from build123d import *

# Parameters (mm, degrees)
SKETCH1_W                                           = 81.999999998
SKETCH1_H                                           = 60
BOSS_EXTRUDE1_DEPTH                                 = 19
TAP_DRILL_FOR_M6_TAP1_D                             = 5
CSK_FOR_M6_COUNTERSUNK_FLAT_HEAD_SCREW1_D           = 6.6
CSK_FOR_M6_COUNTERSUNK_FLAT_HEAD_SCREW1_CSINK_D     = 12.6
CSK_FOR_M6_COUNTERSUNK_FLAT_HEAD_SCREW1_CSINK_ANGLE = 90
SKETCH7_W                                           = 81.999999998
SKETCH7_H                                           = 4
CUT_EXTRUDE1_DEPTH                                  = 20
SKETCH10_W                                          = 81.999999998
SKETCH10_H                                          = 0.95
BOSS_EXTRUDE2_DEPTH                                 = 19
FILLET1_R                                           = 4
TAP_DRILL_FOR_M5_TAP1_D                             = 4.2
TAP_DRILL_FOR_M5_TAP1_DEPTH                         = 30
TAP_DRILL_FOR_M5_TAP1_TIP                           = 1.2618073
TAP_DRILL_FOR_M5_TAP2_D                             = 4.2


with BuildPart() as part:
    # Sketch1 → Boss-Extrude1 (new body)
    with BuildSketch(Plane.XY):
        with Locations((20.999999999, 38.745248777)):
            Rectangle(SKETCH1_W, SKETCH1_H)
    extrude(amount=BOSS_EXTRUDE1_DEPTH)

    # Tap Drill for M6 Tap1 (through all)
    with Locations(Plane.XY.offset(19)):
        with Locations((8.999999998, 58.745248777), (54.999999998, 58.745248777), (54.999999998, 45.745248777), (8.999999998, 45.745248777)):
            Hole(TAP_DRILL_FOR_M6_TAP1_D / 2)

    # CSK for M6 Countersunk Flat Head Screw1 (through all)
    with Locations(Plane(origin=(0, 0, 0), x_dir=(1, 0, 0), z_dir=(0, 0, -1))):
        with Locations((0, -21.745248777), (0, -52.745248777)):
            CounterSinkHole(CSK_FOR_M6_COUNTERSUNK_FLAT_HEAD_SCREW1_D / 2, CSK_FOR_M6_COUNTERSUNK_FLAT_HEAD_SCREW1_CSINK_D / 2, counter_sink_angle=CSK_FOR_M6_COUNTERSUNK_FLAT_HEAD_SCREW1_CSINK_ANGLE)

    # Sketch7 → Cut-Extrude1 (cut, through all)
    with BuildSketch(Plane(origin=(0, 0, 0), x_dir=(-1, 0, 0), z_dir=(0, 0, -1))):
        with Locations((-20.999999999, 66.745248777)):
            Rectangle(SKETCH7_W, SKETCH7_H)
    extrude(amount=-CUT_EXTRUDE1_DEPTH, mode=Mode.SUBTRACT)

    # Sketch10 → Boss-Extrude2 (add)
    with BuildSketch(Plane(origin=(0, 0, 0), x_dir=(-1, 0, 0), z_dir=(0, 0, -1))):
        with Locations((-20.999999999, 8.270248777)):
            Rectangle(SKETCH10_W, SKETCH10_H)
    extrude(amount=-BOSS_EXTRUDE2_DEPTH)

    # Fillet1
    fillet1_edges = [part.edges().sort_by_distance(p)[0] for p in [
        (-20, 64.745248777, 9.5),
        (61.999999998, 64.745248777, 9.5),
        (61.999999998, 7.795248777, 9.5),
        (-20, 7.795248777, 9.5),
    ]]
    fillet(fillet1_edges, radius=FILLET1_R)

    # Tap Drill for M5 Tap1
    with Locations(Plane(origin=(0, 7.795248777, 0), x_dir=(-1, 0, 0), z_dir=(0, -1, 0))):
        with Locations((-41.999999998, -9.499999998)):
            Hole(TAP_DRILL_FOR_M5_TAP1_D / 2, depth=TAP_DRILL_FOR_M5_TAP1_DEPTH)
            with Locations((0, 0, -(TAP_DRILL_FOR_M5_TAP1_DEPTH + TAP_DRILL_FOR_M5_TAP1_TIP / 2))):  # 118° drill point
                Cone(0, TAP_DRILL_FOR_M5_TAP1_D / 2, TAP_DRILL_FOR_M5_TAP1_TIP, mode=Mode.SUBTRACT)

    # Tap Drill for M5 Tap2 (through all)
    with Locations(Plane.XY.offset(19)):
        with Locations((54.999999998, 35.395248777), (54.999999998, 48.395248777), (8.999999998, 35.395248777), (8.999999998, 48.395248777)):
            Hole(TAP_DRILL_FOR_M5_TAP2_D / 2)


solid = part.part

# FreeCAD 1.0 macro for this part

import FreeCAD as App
import Part
import Sketcher
Q = App.Units.Quantity


def edges_at(feature, points):
    """Names of the edges that pass closest to the given points."""
    edges = feature.Shape.Edges
    near = lambda p: min(range(len(edges)), key=lambda i: edges[i].distToShape(Part.Vertex(*p))[0])
    return sorted({f"Edge{near(p) + 1}" for p in points})


def add_polygon(sketch, points):
    """Adds a closed chain of lines whose ends are joined by coincident constraints."""
    first, n = sketch.GeometryCount, len(points)
    for a, b in zip(points, points[1:] + points[:1]):
        sketch.addGeometry(Part.LineSegment(App.Vector(*a, 0), App.Vector(*b, 0)), False)
    for i in range(n):
        sketch.addConstraint(Sketcher.Constraint("Coincident", first + i, 2, first + (i + 1) % n, 1))

doc = App.newDocument("Part")
body = doc.addObject("PartDesign::Body", "Body")

# Sketch on XY plane
sketch1 = body.newObject("Sketcher::SketchObject", "Sketch")
sketch1.AttachmentSupport = (doc.getObject("XY_Plane"), [""])
sketch1.MapMode = "FlatFace"
add_polygon(sketch1, [(-20, 68.745249), (-20, 8.745249), (62, 8.745249), (62, 68.745249)])  # lines 0-3
sketch1.addConstraint([
    Sketcher.Constraint("Vertical", 0),
    Sketcher.Constraint("Horizontal", 1),
    Sketcher.Constraint("Vertical", 2),
    Sketcher.Constraint("Horizontal", 3),
    Sketcher.Constraint("DistanceX", 1, 1, 1, 2, Q("82 mm")),
    Sketcher.Constraint("DistanceY", 0, 2, 0, 1, Q("60 mm")),
    Sketcher.Constraint("DistanceX", 0, 2, -1, 1, Q("20 mm")),
    Sketcher.Constraint("DistanceY", -1, 1, 0, 2, Q("8.745249 mm")),
])
pad1 = body.newObject("PartDesign::Pad", "Pad")
pad1.Profile = sketch1
pad1.Length = 19

# Sketch on XY plane
sketch2 = body.newObject("Sketcher::SketchObject", "Sketch001")
sketch2.AttachmentSupport = (doc.getObject("XY_Plane"), [""])
sketch2.MapMode = "FlatFace"
sketch2.AttachmentOffset = App.Placement(App.Vector(0, 0, 19), App.Rotation())
sketch2.addGeometry([
    Part.Circle(App.Vector(9, 58.745249, 0), App.Vector(0, 0, 1), 2.5),
    Part.Circle(App.Vector(55, 58.745249, 0), App.Vector(0, 0, 1), 2.5),
    Part.Circle(App.Vector(55, 45.745249, 0), App.Vector(0, 0, 1), 2.5),
    Part.Circle(App.Vector(9, 45.745249, 0), App.Vector(0, 0, 1), 2.5),
], False)
sketch2.addConstraint([
    Sketcher.Constraint("Equal", 0, 1),
    Sketcher.Constraint("Equal", 1, 2),
    Sketcher.Constraint("Equal", 2, 3),
    Sketcher.Constraint("Horizontal", 0, 3, 1, 3),
    Sketcher.Constraint("Horizontal", 2, 3, 3, 3),
    Sketcher.Constraint("Vertical", 1, 3, 2, 3),
    Sketcher.Constraint("Vertical", 0, 3, 3, 3),
    Sketcher.Constraint("Diameter", 0, Q("5 mm")),
    Sketcher.Constraint("DistanceX", -1, 1, 0, 3, Q("9 mm")),
    Sketcher.Constraint("DistanceX", -1, 1, 1, 3, Q("55 mm")),
    Sketcher.Constraint("DistanceY", 2, 3, 1, 3, Q("13 mm")),
    Sketcher.Constraint("DistanceY", -1, 1, 0, 3, Q("58.745249 mm")),
])
doc.recompute()
hole = body.newObject("PartDesign::Hole", "Hole")
hole.Profile = sketch2
hole.ThreadType = "None"
hole.Diameter = 5
hole.DepthType = "ThroughAll"

# Sketch on XY plane
sketch3 = body.newObject("Sketcher::SketchObject", "Sketch002")
sketch3.AttachmentSupport = (doc.getObject("XY_Plane"), [""])
sketch3.MapMode = "FlatFace"
sketch3.addGeometry([
    Part.Circle(App.Vector(0, 21.745249, 0), App.Vector(0, 0, 1), 3.3),
    Part.Circle(App.Vector(0, 52.745249, 0), App.Vector(0, 0, 1), 3.3),
], False)
sketch3.addConstraint([
    Sketcher.Constraint("Equal", 0, 1),
    Sketcher.Constraint("PointOnObject", 0, 3, -2),
    Sketcher.Constraint("PointOnObject", 1, 3, -2),
    Sketcher.Constraint("Diameter", 0, Q("6.6 mm")),
    Sketcher.Constraint("DistanceY", 0, 3, 1, 3, Q("31 mm")),
    Sketcher.Constraint("DistanceY", -1, 1, 0, 3, Q("21.745249 mm")),
])
doc.recompute()
hole2 = body.newObject("PartDesign::Hole", "Hole001")
hole2.Profile = sketch3
hole2.ThreadType = "None"
hole2.Diameter = 6.6
hole2.DepthType = "ThroughAll"
hole2.HoleCutType = "Countersink"
hole2.HoleCutDiameter = 12.6
hole2.HoleCutCountersinkAngle = 90
hole2.Reversed = True

# Sketch on XY plane
sketch4 = body.newObject("Sketcher::SketchObject", "Sketch003")
sketch4.AttachmentSupport = (doc.getObject("XY_Plane"), [""])
sketch4.MapMode = "FlatFace"
add_polygon(sketch4, [(62, 68.745249), (62, 64.745249), (-20, 64.745249), (-20, 68.745249)])  # lines 0-3
sketch4.addConstraint([
    Sketcher.Constraint("Vertical", 0),
    Sketcher.Constraint("Horizontal", 1),
    Sketcher.Constraint("Vertical", 2),
    Sketcher.Constraint("Horizontal", 3),
    Sketcher.Constraint("DistanceX", 1, 2, 1, 1, Q("82 mm")),
    Sketcher.Constraint("DistanceY", 0, 2, 0, 1, Q("4 mm")),
    Sketcher.Constraint("DistanceX", -1, 1, 0, 2, Q("62 mm")),
    Sketcher.Constraint("DistanceY", -1, 1, 0, 2, Q("64.745249 mm")),
])
pocket1 = body.newObject("PartDesign::Pocket", "Pocket")
pocket1.Profile = sketch4
pocket1.Type = "ThroughAll"
pocket1.Reversed = True

# Sketch on XY plane
sketch5 = body.newObject("Sketcher::SketchObject", "Sketch004")
sketch5.AttachmentSupport = (doc.getObject("XY_Plane"), [""])
sketch5.MapMode = "FlatFace"
add_polygon(sketch5, [(62, 8.745249), (62, 7.795249), (-20, 7.795249), (-20, 8.745249)])  # lines 0-3
sketch5.addConstraint([
    Sketcher.Constraint("Vertical", 0),
    Sketcher.Constraint("Horizontal", 1),
    Sketcher.Constraint("Vertical", 2),
    Sketcher.Constraint("Horizontal", 3),
    Sketcher.Constraint("DistanceX", 1, 2, 1, 1, Q("82 mm")),
    Sketcher.Constraint("DistanceX", -1, 1, 0, 2, Q("62 mm")),
    Sketcher.Constraint("DistanceY", 0, 2, 0, 1, Q("0.95 mm")),
    Sketcher.Constraint("DistanceY", -1, 1, 0, 2, Q("7.795249 mm")),
])
pad2 = body.newObject("PartDesign::Pad", "Pad001")
pad2.Profile = sketch5
pad2.Length = 19
doc.recompute()

fillet = body.newObject("PartDesign::Fillet", "Fillet")
fillet.Base = (pad2, edges_at(pad2, [
    (-20, 64.745, 9.5),
    (62, 64.745, 9.5),
    (62, 7.795, 9.5),
    (-20, 7.795, 9.5),
]))
fillet.Radius = 4

# Sketch on XZ plane
sketch6 = body.newObject("Sketcher::SketchObject", "Sketch005")
sketch6.AttachmentSupport = (doc.getObject("XZ_Plane"), [""])
sketch6.MapMode = "FlatFace"
sketch6.AttachmentOffset = App.Placement(App.Vector(0, 0, -7.795249), App.Rotation())
sketch6.addGeometry(Part.Circle(App.Vector(42, 9.5, 0), App.Vector(0, 0, 1), 2.1), False)
sketch6.addConstraint([
    Sketcher.Constraint("Diameter", 0, Q("4.2 mm")),
    Sketcher.Constraint("DistanceX", -1, 1, 0, 3, Q("42 mm")),
    Sketcher.Constraint("DistanceY", -1, 1, 0, 3, Q("9.5 mm")),
])
doc.recompute()
hole3 = body.newObject("PartDesign::Hole", "Hole002")
hole3.Profile = sketch6
hole3.ThreadType = "None"
hole3.Diameter = 4.2
hole3.DepthType = "Dimension"
hole3.Depth = 30
hole3.DrillPoint = "Angled"
hole3.DrillPointAngle = 118

# Sketch on XY plane
sketch7 = body.newObject("Sketcher::SketchObject", "Sketch006")
sketch7.AttachmentSupport = (doc.getObject("XY_Plane"), [""])
sketch7.MapMode = "FlatFace"
sketch7.AttachmentOffset = App.Placement(App.Vector(0, 0, 19), App.Rotation())
sketch7.addGeometry([
    Part.Circle(App.Vector(55, 35.395249, 0), App.Vector(0, 0, 1), 2.1),
    Part.Circle(App.Vector(55, 48.395249, 0), App.Vector(0, 0, 1), 2.1),
    Part.Circle(App.Vector(9, 35.395249, 0), App.Vector(0, 0, 1), 2.1),
    Part.Circle(App.Vector(9, 48.395249, 0), App.Vector(0, 0, 1), 2.1),
], False)
sketch7.addConstraint([
    Sketcher.Constraint("Equal", 0, 1),
    Sketcher.Constraint("Equal", 1, 2),
    Sketcher.Constraint("Equal", 2, 3),
    Sketcher.Constraint("Horizontal", 0, 3, 2, 3),
    Sketcher.Constraint("Horizontal", 1, 3, 3, 3),
    Sketcher.Constraint("Vertical", 0, 3, 1, 3),
    Sketcher.Constraint("Vertical", 2, 3, 3, 3),
    Sketcher.Constraint("Diameter", 0, Q("4.2 mm")),
    Sketcher.Constraint("DistanceX", -1, 1, 0, 3, Q("55 mm")),
    Sketcher.Constraint("DistanceX", -1, 1, 2, 3, Q("9 mm")),
    Sketcher.Constraint("DistanceY", 0, 3, 1, 3, Q("13 mm")),
    Sketcher.Constraint("DistanceY", -1, 1, 0, 3, Q("35.395249 mm")),
])
doc.recompute()
hole4 = body.newObject("PartDesign::Hole", "Hole003")
hole4.Profile = sketch7
hole4.ThreadType = "None"
hole4.Diameter = 4.2
hole4.DepthType = "ThroughAll"

doc.recompute()
